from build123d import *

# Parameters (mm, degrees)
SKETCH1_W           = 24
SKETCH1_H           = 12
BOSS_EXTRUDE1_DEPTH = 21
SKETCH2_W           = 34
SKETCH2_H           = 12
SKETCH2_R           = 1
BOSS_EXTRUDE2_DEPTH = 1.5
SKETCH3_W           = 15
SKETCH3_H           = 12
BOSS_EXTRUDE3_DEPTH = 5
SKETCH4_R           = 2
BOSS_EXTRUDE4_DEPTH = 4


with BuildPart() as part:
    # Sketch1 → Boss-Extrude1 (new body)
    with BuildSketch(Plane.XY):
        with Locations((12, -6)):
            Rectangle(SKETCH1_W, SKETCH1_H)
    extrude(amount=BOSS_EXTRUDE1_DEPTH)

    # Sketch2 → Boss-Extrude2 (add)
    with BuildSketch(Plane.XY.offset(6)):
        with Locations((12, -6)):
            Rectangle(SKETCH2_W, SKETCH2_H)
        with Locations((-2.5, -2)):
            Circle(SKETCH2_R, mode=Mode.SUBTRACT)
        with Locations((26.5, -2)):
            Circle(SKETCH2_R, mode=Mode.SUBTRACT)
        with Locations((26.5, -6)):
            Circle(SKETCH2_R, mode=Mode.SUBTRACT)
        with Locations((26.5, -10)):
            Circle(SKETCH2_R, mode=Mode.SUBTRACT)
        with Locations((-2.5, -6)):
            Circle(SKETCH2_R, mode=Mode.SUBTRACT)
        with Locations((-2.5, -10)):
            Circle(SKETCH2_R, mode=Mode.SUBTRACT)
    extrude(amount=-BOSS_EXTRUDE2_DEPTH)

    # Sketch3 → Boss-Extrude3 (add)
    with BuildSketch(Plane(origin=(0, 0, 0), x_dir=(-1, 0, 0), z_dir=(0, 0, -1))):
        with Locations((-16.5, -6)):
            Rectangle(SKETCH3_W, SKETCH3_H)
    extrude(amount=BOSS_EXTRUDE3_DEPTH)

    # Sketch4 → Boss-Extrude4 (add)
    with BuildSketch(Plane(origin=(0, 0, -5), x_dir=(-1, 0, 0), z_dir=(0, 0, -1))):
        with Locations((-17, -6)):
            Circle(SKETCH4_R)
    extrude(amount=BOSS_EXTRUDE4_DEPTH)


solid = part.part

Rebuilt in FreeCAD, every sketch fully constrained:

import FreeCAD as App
import Part
import Sketcher


def add_polygon(sketch, points):
    """Adds a closed chain of lines whose ends are joined by coincident constraints."""
    first, n = sketch.GeometryCount, len(points)
    for a, b in zip(points, points[1:] + points[:1]):
        sketch.addGeometry(Part.LineSegment(App.Vector(*a, 0), App.Vector(*b, 0)), False)
    for i in range(n):
        sketch.addConstraint(Sketcher.Constraint("Coincident", first + i, 2, first + (i + 1) % n, 1))

doc = App.newDocument("Part")
params = doc.addObject("Spreadsheet::Sheet", "Params")
for row, (alias, value) in enumerate([
    ("sketch1_width", "24 mm"),
    ("sketch1_height", "12 mm"),
    ("pad1_length", "21 mm"),
    ("sketch2_diameter", "2 mm"),
    ("sketch2_width", "34 mm"),
    ("sketch2_height", "12 mm"),
    ("pad2_length", "1.5 mm"),
    ("sketch3_width", "15 mm"),
    ("sketch3_height", "12 mm"),
    ("pad3_length", "5 mm"),
    ("sketch4_diameter", "4 mm"),
    ("pad4_length", "4 mm"),
], start=1):
    params.set(f"A{row}", alias)
    params.set(f"B{row}", "=" + value)
    params.setAlias(f"B{row}", alias)

body = doc.addObject("PartDesign::Body", "Body")

# Sketch on XY plane
sketch1 = doc.addObject("Sketcher::SketchObject", "Sketch")
body.addObject(sketch1)
sketch1.AttachmentSupport = (doc.XY_Plane, [""])
sketch1.MapMode = "FlatFace"
add_polygon(sketch1, [(0, 0), (0, -12), (24, -12), (24, 0)])  # lines 0-3
sketch1.addConstraint([
    Sketcher.Constraint("Vertical", 0),
    Sketcher.Constraint("Horizontal", 1),
    Sketcher.Constraint("Vertical", 2),
    Sketcher.Constraint("Horizontal", 3),
    Sketcher.Constraint("Coincident", 3, 2, -1, 1),
    Sketcher.Constraint("DistanceX", 1, 1, 1, 2, 24.0),
    Sketcher.Constraint("DistanceY", 0, 2, 0, 1, 12.0),
])
sketch1.setExpression("Constraints[9]", "Params.sketch1_width")
sketch1.setExpression("Constraints[10]", "Params.sketch1_height")
pad1 = doc.addObject("PartDesign::Pad", "Pad")
body.addObject(pad1)
pad1.Profile = sketch1
pad1.setExpression("Length", "Params.pad1_length")

# Sketch on XY plane
sketch2 = doc.addObject("Sketcher::SketchObject", "Sketch001")
body.addObject(sketch2)
sketch2.AttachmentSupport = (doc.XY_Plane, [""])
sketch2.MapMode = "FlatFace"
sketch2.AttachmentOffset = App.Placement(App.Vector(0, 0, 6), App.Rotation())
add_polygon(sketch2, [(-5, 0), (-5, -12), (29, -12), (29, 0)])  # lines 0-3
sketch2.addGeometry(Part.Circle(App.Vector(-2.5, -10, 0), App.Vector(0, 0, 1), 1), False)  # 4
sketch2.addGeometry(Part.Circle(App.Vector(26.5, -10, 0), App.Vector(0, 0, 1), 1), False)  # 5
sketch2.addGeometry(Part.Circle(App.Vector(-2.5, -6, 0), App.Vector(0, 0, 1), 1), False)  # 6
sketch2.addGeometry(Part.Circle(App.Vector(-2.5, -2, 0), App.Vector(0, 0, 1), 1), False)  # 7
sketch2.addGeometry(Part.Circle(App.Vector(26.5, -6, 0), App.Vector(0, 0, 1), 1), False)  # 8
sketch2.addGeometry(Part.Circle(App.Vector(26.5, -2, 0), App.Vector(0, 0, 1), 1), False)  # 9
sketch2.addConstraint([
    Sketcher.Constraint("Vertical", 0),
    Sketcher.Constraint("Horizontal", 1),
    Sketcher.Constraint("Vertical", 2),
    Sketcher.Constraint("Horizontal", 3),
    Sketcher.Constraint("Equal", 4, 5),
    Sketcher.Constraint("Equal", 5, 6),
    Sketcher.Constraint("Equal", 6, 7),
    Sketcher.Constraint("Equal", 7, 8),
    Sketcher.Constraint("Equal", 8, 9),
    Sketcher.Constraint("PointOnObject", 2, 2, -1),
    Sketcher.Constraint("Horizontal", 4, 3, 5, 3),
    Sketcher.Constraint("Horizontal", 6, 3, 8, 3),
    Sketcher.Constraint("Horizontal", 7, 3, 9, 3),
    Sketcher.Constraint("Vertical", 4, 3, 6, 3),
    Sketcher.Constraint("Vertical", 6, 3, 7, 3),
    Sketcher.Constraint("Vertical", 5, 3, 8, 3),
    Sketcher.Constraint("Vertical", 8, 3, 9, 3),
    Sketcher.Constraint("Diameter", 4, 2.0),
    Sketcher.Constraint("DistanceX", 1, 1, 1, 2, 34.0),
    Sketcher.Constraint("DistanceY", 0, 2, 0, 1, 12.0),
    Sketcher.Constraint("DistanceY", 4, 3, -1, 1, 10.0),
    Sketcher.Constraint("DistanceY", 6, 3, -1, 1, 6.0),
    Sketcher.Constraint("DistanceY", 7, 3, -1, 1, 2.0),
    Sketcher.Constraint("DistanceX", 0, 2, -1, 1, 5.0),
    Sketcher.Constraint("DistanceX", 4, 3, 5, 3, 29.0),
    Sketcher.Constraint("DistanceX", 4, 3, -1, 1, 2.5),
])
sketch2.setExpression("Constraints[21]", "Params.sketch2_diameter")
sketch2.setExpression("Constraints[22]", "Params.sketch2_width")
sketch2.setExpression("Constraints[23]", "Params.sketch2_height")
pad2 = doc.addObject("PartDesign::Pad", "Pad001")
body.addObject(pad2)
pad2.Profile = sketch2
pad2.setExpression("Length", "Params.pad2_length")
pad2.Reversed = True

# Sketch on XY plane
sketch3 = doc.addObject("Sketcher::SketchObject", "Sketch002")
body.addObject(sketch3)
sketch3.AttachmentSupport = (doc.XY_Plane, [""])
sketch3.MapMode = "FlatFace"
add_polygon(sketch3, [(24, 0), (24, -12), (9, -12), (9, 0)])  # lines 0-3
sketch3.addConstraint([
    Sketcher.Constraint("Vertical", 0),
    Sketcher.Constraint("Horizontal", 1),
    Sketcher.Constraint("Vertical", 2),
    Sketcher.Constraint("Horizontal", 3),
    Sketcher.Constraint("PointOnObject", 2, 2, -1),
    Sketcher.Constraint("DistanceX", 1, 2, 1, 1, 15.0),
    Sketcher.Constraint("DistanceY", 0, 2, 0, 1, 12.0),
    Sketcher.Constraint("DistanceX", -1, 1, 0, 2, 24.0),
])
sketch3.setExpression("Constraints[9]", "Params.sketch3_width")
sketch3.setExpression("Constraints[10]", "Params.sketch3_height")
pad3 = doc.addObject("PartDesign::Pad", "Pad002")
body.addObject(pad3)
pad3.Profile = sketch3
pad3.setExpression("Length", "Params.pad3_length")
pad3.Reversed = True

# Sketch on XY plane
sketch4 = doc.addObject("Sketcher::SketchObject", "Sketch003")
body.addObject(sketch4)
sketch4.AttachmentSupport = (doc.XY_Plane, [""])
sketch4.MapMode = "FlatFace"
sketch4.AttachmentOffset = App.Placement(App.Vector(0, 0, -5), App.Rotation())
sketch4.addGeometry(Part.Circle(App.Vector(17, -6, 0), App.Vector(0, 0, 1), 2), False)
sketch4.addConstraint([
    Sketcher.Constraint("Diameter", 0, 4.0),
    Sketcher.Constraint("DistanceX", -1, 1, 0, 3, 17.0),
    Sketcher.Constraint("DistanceY", 0, 3, -1, 1, 6.0),
])
sketch4.setExpression("Constraints[0]", "Params.sketch4_diameter")
pad4 = doc.addObject("PartDesign::Pad", "Pad003")
body.addObject(pad4)
pad4.Profile = sketch4
pad4.setExpression("Length", "Params.pad4_length")
pad4.Reversed = True

doc.recompute()
